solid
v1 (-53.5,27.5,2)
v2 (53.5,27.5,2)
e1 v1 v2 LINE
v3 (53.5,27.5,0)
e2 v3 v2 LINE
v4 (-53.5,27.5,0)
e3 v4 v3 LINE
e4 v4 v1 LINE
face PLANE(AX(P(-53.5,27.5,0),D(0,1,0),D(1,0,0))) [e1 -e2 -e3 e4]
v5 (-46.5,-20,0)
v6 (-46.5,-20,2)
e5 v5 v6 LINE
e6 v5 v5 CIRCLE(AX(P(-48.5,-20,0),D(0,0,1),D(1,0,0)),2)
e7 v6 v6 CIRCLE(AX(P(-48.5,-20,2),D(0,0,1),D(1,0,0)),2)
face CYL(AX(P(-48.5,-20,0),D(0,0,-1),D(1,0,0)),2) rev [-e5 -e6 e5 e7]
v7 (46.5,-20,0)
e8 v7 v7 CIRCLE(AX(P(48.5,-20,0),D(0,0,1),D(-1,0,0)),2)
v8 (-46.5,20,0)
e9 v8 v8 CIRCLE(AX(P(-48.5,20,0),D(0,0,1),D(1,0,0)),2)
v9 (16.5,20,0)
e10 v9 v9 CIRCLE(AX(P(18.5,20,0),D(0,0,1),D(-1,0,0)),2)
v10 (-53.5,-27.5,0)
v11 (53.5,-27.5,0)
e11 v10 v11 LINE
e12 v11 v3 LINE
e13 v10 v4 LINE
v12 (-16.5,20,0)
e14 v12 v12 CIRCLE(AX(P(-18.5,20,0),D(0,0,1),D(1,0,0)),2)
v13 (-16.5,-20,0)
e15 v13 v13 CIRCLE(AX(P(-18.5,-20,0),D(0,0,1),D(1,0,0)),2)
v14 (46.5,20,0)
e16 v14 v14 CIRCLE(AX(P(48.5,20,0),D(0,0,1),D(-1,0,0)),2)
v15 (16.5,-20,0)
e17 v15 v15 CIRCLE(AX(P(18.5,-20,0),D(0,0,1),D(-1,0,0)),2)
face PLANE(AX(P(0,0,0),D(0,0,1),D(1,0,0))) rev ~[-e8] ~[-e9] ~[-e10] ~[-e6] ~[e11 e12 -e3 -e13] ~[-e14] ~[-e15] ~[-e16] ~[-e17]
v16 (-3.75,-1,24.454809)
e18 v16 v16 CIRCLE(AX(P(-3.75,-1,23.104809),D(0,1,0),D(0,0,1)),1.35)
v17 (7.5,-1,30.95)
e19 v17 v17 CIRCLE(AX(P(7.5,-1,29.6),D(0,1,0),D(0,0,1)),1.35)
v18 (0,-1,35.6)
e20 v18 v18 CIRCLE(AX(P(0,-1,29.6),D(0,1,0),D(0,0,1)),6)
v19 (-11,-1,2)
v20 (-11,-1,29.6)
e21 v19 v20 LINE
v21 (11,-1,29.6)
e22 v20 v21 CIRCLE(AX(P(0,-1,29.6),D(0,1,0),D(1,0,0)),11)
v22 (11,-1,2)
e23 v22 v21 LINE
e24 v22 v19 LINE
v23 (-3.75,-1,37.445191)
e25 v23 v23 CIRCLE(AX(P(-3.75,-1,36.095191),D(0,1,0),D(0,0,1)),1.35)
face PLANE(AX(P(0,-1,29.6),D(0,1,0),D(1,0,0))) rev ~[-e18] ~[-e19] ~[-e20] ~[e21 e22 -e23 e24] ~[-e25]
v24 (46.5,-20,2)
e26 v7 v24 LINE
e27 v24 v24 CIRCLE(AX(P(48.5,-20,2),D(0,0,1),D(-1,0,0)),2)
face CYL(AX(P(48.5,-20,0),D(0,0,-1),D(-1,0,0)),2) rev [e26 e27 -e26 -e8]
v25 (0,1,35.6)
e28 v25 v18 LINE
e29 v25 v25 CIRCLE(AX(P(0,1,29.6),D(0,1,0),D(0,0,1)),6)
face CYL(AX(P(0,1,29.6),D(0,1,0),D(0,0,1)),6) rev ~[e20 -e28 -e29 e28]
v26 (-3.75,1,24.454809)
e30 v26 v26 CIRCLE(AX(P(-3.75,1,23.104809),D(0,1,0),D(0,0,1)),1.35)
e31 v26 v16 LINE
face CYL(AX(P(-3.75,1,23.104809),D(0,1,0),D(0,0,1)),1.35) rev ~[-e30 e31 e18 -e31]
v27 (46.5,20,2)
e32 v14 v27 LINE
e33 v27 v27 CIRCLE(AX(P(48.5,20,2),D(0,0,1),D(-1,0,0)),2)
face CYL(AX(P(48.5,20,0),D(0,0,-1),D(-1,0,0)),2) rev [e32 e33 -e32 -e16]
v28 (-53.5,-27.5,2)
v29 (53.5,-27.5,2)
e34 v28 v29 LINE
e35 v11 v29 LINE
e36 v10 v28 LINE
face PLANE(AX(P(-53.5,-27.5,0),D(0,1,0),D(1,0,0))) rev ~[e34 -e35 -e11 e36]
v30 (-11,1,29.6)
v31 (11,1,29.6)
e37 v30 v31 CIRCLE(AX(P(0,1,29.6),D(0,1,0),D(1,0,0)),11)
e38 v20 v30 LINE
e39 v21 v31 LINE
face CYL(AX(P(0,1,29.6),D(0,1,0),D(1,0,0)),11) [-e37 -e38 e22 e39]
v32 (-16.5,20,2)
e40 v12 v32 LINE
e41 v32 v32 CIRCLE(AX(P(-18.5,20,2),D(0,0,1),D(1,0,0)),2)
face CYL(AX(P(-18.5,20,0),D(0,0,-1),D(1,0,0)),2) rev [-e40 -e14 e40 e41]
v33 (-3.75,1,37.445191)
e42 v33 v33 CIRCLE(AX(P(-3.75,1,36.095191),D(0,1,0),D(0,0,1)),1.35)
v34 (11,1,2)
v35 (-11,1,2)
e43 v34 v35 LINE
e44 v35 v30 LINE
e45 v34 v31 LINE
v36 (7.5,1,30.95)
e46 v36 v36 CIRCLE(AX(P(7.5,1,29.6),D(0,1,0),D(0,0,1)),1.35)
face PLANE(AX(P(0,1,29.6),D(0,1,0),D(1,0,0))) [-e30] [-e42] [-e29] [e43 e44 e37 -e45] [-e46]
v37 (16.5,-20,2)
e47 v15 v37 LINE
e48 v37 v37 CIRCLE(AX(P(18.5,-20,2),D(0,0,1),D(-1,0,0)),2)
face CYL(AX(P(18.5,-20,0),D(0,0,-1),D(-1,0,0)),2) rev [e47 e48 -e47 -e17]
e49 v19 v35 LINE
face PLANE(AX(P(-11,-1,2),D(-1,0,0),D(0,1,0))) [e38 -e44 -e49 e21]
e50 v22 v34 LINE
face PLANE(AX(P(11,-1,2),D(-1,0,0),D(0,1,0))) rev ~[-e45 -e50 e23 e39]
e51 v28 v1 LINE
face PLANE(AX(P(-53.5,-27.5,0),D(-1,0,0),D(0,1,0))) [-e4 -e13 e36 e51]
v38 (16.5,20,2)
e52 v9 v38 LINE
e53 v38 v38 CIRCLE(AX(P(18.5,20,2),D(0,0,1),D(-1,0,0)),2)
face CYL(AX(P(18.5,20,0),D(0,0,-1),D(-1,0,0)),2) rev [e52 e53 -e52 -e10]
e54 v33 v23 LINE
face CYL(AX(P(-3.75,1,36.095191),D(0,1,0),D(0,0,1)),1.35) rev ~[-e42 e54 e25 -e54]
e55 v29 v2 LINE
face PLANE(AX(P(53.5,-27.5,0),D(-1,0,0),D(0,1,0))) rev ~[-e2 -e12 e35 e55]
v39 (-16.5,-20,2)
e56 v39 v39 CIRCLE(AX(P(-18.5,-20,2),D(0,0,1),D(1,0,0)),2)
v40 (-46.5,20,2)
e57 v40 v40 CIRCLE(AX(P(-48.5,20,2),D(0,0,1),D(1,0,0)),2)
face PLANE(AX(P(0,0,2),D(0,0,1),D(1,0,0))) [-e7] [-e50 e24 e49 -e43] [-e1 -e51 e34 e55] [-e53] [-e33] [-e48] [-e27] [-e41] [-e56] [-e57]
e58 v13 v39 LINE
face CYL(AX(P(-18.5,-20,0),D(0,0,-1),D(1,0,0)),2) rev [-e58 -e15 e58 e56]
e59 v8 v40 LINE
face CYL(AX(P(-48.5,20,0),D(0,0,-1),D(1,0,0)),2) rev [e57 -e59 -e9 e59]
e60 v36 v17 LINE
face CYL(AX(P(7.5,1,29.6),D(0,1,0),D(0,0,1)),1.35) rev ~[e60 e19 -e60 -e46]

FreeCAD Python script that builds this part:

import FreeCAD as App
import Part
import Sketcher
Q = App.Units.Quantity


def add_polygon(sketch, points):
    """Adds a closed chain of lines whose ends are joined by coincident constraints."""
    first, n = sketch.GeometryCount, len(points)
    for a, b in zip(points, points[1:] + points[:1]):
        sketch.addGeometry(Part.LineSegment(App.Vector(*a, 0), App.Vector(*b, 0)), False)
    for i in range(n):
        sketch.addConstraint(Sketcher.Constraint("Coincident", first + i, 2, first + (i + 1) % n, 1))

doc = App.newDocument("Part")
body = doc.addObject("PartDesign::Body", "Body")

sketch1 = body.newObject("Sketcher::SketchObject", "Sketch")
sketch1.AttachmentSupport = (doc.getObject("XY_Plane"), [""])
sketch1.MapMode = "FlatFace"
add_polygon(sketch1, [(-53.5, 27.5), (-53.5, -27.5), (53.5, -27.5), (53.5, 27.5)])
sketch1.addGeometry(Part.Circle(App.Vector(-48.5, -20, 0), App.Vector(0, 0, 1), 2), False)
sketch1.addGeometry(Part.Circle(App.Vector(-18.5, -20, 0), App.Vector(0, 0, 1), 2), False)
sketch1.addGeometry(Part.Circle(App.Vector(18.5, -20, 0), App.Vector(0, 0, 1), 2), False)
sketch1.addGeometry(Part.Circle(App.Vector(48.5, -20, 0), App.Vector(0, 0, 1), 2), False)
sketch1.addGeometry(Part.Circle(App.Vector(-48.5, 20, 0), App.Vector(0, 0, 1), 2), False)
sketch1.addGeometry(Part.Circle(App.Vector(-18.5, 20, 0), App.Vector(0, 0, 1), 2), False)
sketch1.addGeometry(Part.Circle(App.Vector(18.5, 20, 0), App.Vector(0, 0, 1), 2), False)
sketch1.addGeometry(Part.Circle(App.Vector(48.5, 20, 0), App.Vector(0, 0, 1), 2), False)
sketch1.addConstraint([
    Sketcher.Constraint("Vertical", 0),
    Sketcher.Constraint("Horizontal", 1),
    Sketcher.Constraint("Vertical", 2),
    Sketcher.Constraint("Horizontal", 3),
    Sketcher.Constraint("Equal", 4, 5),
    Sketcher.Constraint("Equal", 5, 6),
    Sketcher.Constraint("Equal", 6, 7),
    Sketcher.Constraint("Equal", 7, 8),
    Sketcher.Constraint("Equal", 8, 9),
    Sketcher.Constraint("Equal", 9, 10),
    Sketcher.Constraint("Equal", 10, 11),
    Sketcher.Constraint("Symmetric", 7, 3, 8, 3, -1, 1),
    Sketcher.Constraint("Symmetric", 6, 3, 9, 3, -1, 1),
    Sketcher.Constraint("Symmetric", 5, 3, 10, 3, -1, 1),
    Sketcher.Constraint("Symmetric", 4, 3, 11, 3, -1, 1),
    Sketcher.Constraint("Symmetric", 0, 2, 2, 2, -1, 1),
    Sketcher.Constraint("Symmetric", 5, 3, 6, 3, -2),
    Sketcher.Constraint("Symmetric", 4, 3, 7, 3, -2),
    Sketcher.Constraint("Horizontal", 4, 3, 5, 3),
    Sketcher.Constraint("Diameter", 4, Q("4 mm")),
    Sketcher.Constraint("DistanceX", 1, 1, 1, 2, Q("107 mm")),
    Sketcher.Constraint("DistanceY", 0, 2, 0, 1, Q("55 mm")),
    Sketcher.Constraint("DistanceY", 4, 3, -1, 1, Q("20 mm")),
    Sketcher.Constraint("DistanceX", 4, 3, 5, 3, Q("30 mm")),
    Sketcher.Constraint("DistanceX", 5, 3, 6, 3, Q("37 mm")),
])
pad1 = body.newObject("PartDesign::Pad", "Pad")
pad1.Profile = sketch1
pad1.Length = 2

sketch2 = body.newObject("Sketcher::SketchObject", "Sketch001")
sketch2.AttachmentSupport = (doc.getObject("XY_Plane"), [""])
sketch2.MapMode = "FlatFace"
sketch2.AttachmentOffset = App.Placement(App.Vector(0, 0, 2), App.Rotation())
add_polygon(sketch2, [(11, 1), (11, -1), (-11, -1), (-11, 1)])
sketch2.addConstraint([
    Sketcher.Constraint("Vertical", 0),
    Sketcher.Constraint("Horizontal", 1),
    Sketcher.Constraint("Vertical", 2),
    Sketcher.Constraint("Horizontal", 3),
    Sketcher.Constraint("Symmetric", 0, 2, 2, 2, -1, 1),
    Sketcher.Constraint("DistanceX", 1, 2, 1, 1, Q("22 mm")),
    Sketcher.Constraint("DistanceY", 0, 2, 0, 1, Q("2 mm")),
])
pad2 = body.newObject("PartDesign::Pad", "Pad001")
pad2.Profile = sketch2
pad2.Length = 27.6

sketch3 = body.newObject("Sketcher::SketchObject", "Sketch002")
sketch3.AttachmentSupport = (doc.getObject("XZ_Plane"), [""])
sketch3.MapMode = "FlatFace"
sketch3.AttachmentOffset = App.Placement(App.Vector(0, 0, -1), App.Rotation())
sketch3.addGeometry(Part.Circle(App.Vector(0, 30, 0), App.Vector(0, 0, 1), 11), False)
sketch3.addConstraint([
    Sketcher.Constraint("PointOnObject", 0, 3, -2),
    Sketcher.Constraint("Diameter", 0, Q("22 mm")),
    Sketcher.Constraint("DistanceY", -1, 1, 0, 3, Q("29.6 mm")),
])
pad3 = body.newObject("PartDesign::Pad", "Pad002")
pad3.Profile = sketch3
pad3.Length = 2

sketch4 = body.newObject("Sketcher::SketchObject", "Sketch003")
sketch4.AttachmentSupport = (doc.getObject("XZ_Plane"), [""])
sketch4.MapMode = "FlatFace"
sketch4.AttachmentOffset = App.Placement(App.Vector(0, 0, -1), App.Rotation())
sketch4.addGeometry(Part.Circle(App.Vector(0, 30, 0), App.Vector(0, 0, 1), 6), False)
sketch4.addConstraint([
    Sketcher.Constraint("PointOnObject", 0, 3, -2),
    Sketcher.Constraint("Diameter", 0, Q("12 mm")),
    Sketcher.Constraint("DistanceY", -1, 1, 0, 3, Q("29.6 mm")),
])
pocket1 = body.newObject("PartDesign::Pocket", "Pocket")
pocket1.Profile = sketch4
pocket1.Length = 187.15
pocket1.Reversed = True

sketch5 = body.newObject("Sketcher::SketchObject", "Sketch004")
sketch5.AttachmentSupport = (doc.getObject("XZ_Plane"), [""])
sketch5.MapMode = "FlatFace"
sketch5.AttachmentOffset = App.Placement(App.Vector(0, 0, -1), App.Rotation())
sketch5.addGeometry([
    Part.Circle(App.Vector(7.5, 29.6, 0), App.Vector(0, 0, 1), 1.4),
    Part.Circle(App.Vector(-3.8, 36.1, 0), App.Vector(0, 0, 1), 1.4),
    Part.Circle(App.Vector(-3.8, 23.1, 0), App.Vector(0, 0, 1), 1.4),
], False)
sketch5.addConstraint([
    Sketcher.Constraint("Equal", 0, 1),
    Sketcher.Constraint("Equal", 1, 2),
    Sketcher.Constraint("Vertical", 1, 3, 2, 3),
    Sketcher.Constraint("Diameter", 0, Q("2.7 mm")),
    Sketcher.Constraint("DistanceX", -1, 1, 0, 3, Q("7.5 mm")),
    Sketcher.Constraint("DistanceY", -1, 1, 0, 3, Q("29.6 mm")),
    Sketcher.Constraint("DistanceX", 1, 3, -1, 1, Q("3.75 mm")),
    Sketcher.Constraint("DistanceY", -1, 1, 1, 3, Q("36.095191 mm")),
    Sketcher.Constraint("DistanceY", -1, 1, 2, 3, Q("23.104809 mm")),
])
pocket2 = body.newObject("PartDesign::Pocket", "Pocket001")
pocket2.Profile = sketch5
pocket2.Length = 187.15
pocket2.Reversed = True

doc.recompute()
